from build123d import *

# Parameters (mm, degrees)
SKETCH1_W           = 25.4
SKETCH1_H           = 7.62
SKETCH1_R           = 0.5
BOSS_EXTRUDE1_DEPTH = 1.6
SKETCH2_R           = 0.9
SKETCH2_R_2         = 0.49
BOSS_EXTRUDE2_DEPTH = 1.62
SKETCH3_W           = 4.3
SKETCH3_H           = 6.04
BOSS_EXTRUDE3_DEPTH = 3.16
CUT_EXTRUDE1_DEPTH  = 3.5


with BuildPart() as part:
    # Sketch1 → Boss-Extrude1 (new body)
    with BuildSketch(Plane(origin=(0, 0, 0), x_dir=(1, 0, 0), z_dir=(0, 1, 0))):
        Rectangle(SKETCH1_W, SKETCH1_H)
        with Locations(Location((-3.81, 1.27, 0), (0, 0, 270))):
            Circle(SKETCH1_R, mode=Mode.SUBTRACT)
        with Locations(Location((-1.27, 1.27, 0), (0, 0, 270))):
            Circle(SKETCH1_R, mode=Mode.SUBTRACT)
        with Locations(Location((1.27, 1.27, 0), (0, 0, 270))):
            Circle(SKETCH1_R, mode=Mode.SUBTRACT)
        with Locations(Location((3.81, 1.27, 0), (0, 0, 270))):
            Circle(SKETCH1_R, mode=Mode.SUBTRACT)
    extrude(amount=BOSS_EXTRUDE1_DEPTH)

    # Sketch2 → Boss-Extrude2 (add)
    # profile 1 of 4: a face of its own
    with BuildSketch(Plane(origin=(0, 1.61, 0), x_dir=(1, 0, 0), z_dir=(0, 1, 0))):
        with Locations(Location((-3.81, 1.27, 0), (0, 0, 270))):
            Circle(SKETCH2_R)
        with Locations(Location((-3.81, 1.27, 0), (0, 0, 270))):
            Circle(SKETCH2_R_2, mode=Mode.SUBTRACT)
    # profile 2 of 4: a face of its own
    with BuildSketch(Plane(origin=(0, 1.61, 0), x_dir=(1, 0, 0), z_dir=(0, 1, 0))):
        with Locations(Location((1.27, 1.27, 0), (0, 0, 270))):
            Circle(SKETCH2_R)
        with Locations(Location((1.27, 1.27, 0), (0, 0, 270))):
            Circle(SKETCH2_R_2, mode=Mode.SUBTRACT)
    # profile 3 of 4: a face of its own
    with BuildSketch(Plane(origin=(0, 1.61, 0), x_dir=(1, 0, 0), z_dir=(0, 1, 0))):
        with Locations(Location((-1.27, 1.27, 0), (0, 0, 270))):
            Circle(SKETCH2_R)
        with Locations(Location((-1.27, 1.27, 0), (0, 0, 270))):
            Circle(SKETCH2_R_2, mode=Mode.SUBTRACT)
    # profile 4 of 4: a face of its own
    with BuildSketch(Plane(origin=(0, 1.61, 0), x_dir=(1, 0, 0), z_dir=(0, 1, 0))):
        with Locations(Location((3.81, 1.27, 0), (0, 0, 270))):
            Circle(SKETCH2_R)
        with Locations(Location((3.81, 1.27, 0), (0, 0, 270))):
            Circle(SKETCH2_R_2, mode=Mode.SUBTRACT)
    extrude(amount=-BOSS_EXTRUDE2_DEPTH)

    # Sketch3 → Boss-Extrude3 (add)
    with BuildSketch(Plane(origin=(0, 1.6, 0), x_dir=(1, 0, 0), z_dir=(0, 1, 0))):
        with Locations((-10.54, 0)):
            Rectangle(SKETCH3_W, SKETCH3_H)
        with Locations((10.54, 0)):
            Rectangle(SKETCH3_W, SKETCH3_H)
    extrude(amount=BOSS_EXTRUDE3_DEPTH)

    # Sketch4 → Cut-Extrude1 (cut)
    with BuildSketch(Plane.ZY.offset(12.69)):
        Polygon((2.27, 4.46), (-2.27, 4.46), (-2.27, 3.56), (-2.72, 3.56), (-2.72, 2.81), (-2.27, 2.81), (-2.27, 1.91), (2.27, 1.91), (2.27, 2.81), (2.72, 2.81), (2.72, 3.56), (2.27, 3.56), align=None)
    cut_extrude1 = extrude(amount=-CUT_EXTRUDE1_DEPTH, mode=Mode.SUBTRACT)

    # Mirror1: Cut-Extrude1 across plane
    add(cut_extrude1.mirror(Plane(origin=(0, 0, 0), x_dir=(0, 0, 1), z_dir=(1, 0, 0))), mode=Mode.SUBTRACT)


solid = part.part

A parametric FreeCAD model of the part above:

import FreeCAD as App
import Part
import Sketcher
from FreeCAD import Vector
Q = App.Units.Quantity

doc = App.newDocument("Part")
body = doc.addObject("PartDesign::Body", "Body")

# Sketch on XZ plane
sketch1 = doc.addObject("Sketcher::SketchObject", "Sketch")
body.addObject(sketch1)
sketch1.AttachmentSupport = (doc.XZ_Plane, [""])
sketch1.MapMode = "FlatFace"
sketch1.addGeometry([
    Part.LineSegment(Vector(-12.7, -3.8, 0), Vector(-12.7, 3.8, 0)),  # 0
    Part.LineSegment(Vector(-12.7, 3.8, 0), Vector(12.7, 3.8, 0)),  # 1
    Part.LineSegment(Vector(12.7, 3.8, 0), Vector(12.7, -3.8, 0)),  # 2
    Part.LineSegment(Vector(12.7, -3.8, 0), Vector(-12.7, -3.8, 0)),  # 3
    Part.Circle(Vector(-3.8, -1.3, 0), Vector(0, 0, 1), 0.5),  # 4
    Part.Circle(Vector(-1.3, -1.3, 0), Vector(0, 0, 1), 0.5),  # 5
    Part.Circle(Vector(1.3, -1.3, 0), Vector(0, 0, 1), 0.5),  # 6
    Part.Circle(Vector(3.8, -1.3, 0), Vector(0, 0, 1), 0.5),  # 7
], False)
sketch1.addConstraint([
    Sketcher.Constraint("Coincident", 0, 2, 1, 1),
    Sketcher.Constraint("Coincident", 1, 2, 2, 1),
    Sketcher.Constraint("Coincident", 2, 2, 3, 1),
    Sketcher.Constraint("Coincident", 3, 2, 0, 1),
    Sketcher.Constraint("Vertical", 0),
    Sketcher.Constraint("Horizontal", 1),
    Sketcher.Constraint("Vertical", 2),
    Sketcher.Constraint("Horizontal", 3),
    Sketcher.Constraint("Equal", 4, 5),
    Sketcher.Constraint("Equal", 5, 6),
    Sketcher.Constraint("Equal", 6, 7),
    Sketcher.Constraint("Symmetric", 0, 2, 2, 2, -1, 1),
    Sketcher.Constraint("Symmetric", 5, 3, 6, 3, -2),
    Sketcher.Constraint("Symmetric", 4, 3, 7, 3, -2),
    Sketcher.Constraint("Horizontal", 4, 3, 5, 3),
    Sketcher.Constraint("Diameter", 4, Q("1 mm")),
    Sketcher.Constraint("DistanceX", 1, 1, 1, 2, Q("25.4 mm")),
    Sketcher.Constraint("DistanceY", 0, 1, 0, 2, Q("7.62 mm")),
    Sketcher.Constraint("DistanceX", 4, 3, -1, 1, Q("3.81 mm")),
    Sketcher.Constraint("DistanceY", 4, 3, -1, 1, Q("1.27 mm")),
    Sketcher.Constraint("DistanceX", 5, 3, -1, 1, Q("1.27 mm")),
])
pad1 = doc.addObject("PartDesign::Pad", "Pad")
body.addObject(pad1)
pad1.Profile = sketch1
pad1.Length = 1.6
pad1.Reversed = True

# Sketch on XZ plane
sketch2 = doc.addObject("Sketcher::SketchObject", "Sketch001")
body.addObject(sketch2)
sketch2.AttachmentSupport = (doc.XZ_Plane, [""])
sketch2.MapMode = "FlatFace"
sketch2.AttachmentOffset = App.Placement(Vector(0, 0, -1.61), App.Rotation())
sketch2.addGeometry([
    Part.Circle(Vector(-3.81, -1.27, 0), Vector(0, 0, 1), 0.9),  # 0
    Part.Circle(Vector(-3.81, -1.27, 0), Vector(0, 0, 1), 0.49),  # 1
    Part.Circle(Vector(1.27, -1.27, 0), Vector(0, 0, 1), 0.9),  # 2
    Part.Circle(Vector(1.27, -1.27, 0), Vector(0, 0, 1), 0.49),  # 3
    Part.Circle(Vector(-1.27, -1.27, 0), Vector(0, 0, 1), 0.9),  # 4
    Part.Circle(Vector(-1.27, -1.27, 0), Vector(0, 0, 1), 0.49),  # 5
    Part.Circle(Vector(3.81, -1.27, 0), Vector(0, 0, 1), 0.9),  # 6
    Part.Circle(Vector(3.81, -1.27, 0), Vector(0, 0, 1), 0.49),  # 7
], False)
sketch2.addConstraint([
    Sketcher.Constraint("Coincident", 1, 3, 0, 3),
    Sketcher.Constraint("Coincident", 3, 3, 2, 3),
    Sketcher.Constraint("Coincident", 5, 3, 4, 3),
    Sketcher.Constraint("Coincident", 7, 3, 6, 3),
    Sketcher.Constraint("Equal", 0, 2),
    Sketcher.Constraint("Equal", 1, 3),
    Sketcher.Constraint("Equal", 2, 4),
    Sketcher.Constraint("Equal", 3, 5),
    Sketcher.Constraint("Equal", 4, 6),
    Sketcher.Constraint("Equal", 5, 7),
    Sketcher.Constraint("Symmetric", 2, 3, 4, 3, -2),
    Sketcher.Constraint("Symmetric", 0, 3, 6, 3, -2),
    Sketcher.Constraint("Horizontal", 1, 3, 2, 3),
    Sketcher.Constraint("Diameter", 0, Q("1.8 mm")),
    Sketcher.Constraint("Diameter", 1, Q("0.98 mm")),
    Sketcher.Constraint("DistanceX", 0, 3, -1, 1, Q("3.81 mm")),
    Sketcher.Constraint("DistanceY", 0, 3, -1, 1, Q("1.27 mm")),
    Sketcher.Constraint("DistanceX", -1, 1, 2, 3, Q("1.27 mm")),
])
pad2 = doc.addObject("PartDesign::Pad", "Pad001")
body.addObject(pad2)
pad2.Profile = sketch2
pad2.Length = 1.62

# Sketch on XZ plane
sketch3 = doc.addObject("Sketcher::SketchObject", "Sketch002")
body.addObject(sketch3)
sketch3.AttachmentSupport = (doc.XZ_Plane, [""])
sketch3.MapMode = "FlatFace"
sketch3.AttachmentOffset = App.Placement(Vector(0, 0, -1.6), App.Rotation())
sketch3.addGeometry([
    Part.LineSegment(Vector(-12.7, -3, 0), Vector(-12.7, 3, 0)),  # 0
    Part.LineSegment(Vector(-12.7, 3, 0), Vector(-8.4, 3, 0)),  # 1
    Part.LineSegment(Vector(-8.4, 3, 0), Vector(-8.4, -3, 0)),  # 2
    Part.LineSegment(Vector(-8.4, -3, 0), Vector(-12.7, -3, 0)),  # 3
    Part.LineSegment(Vector(8.4, -3, 0), Vector(8.4, 3, 0)),  # 4
    Part.LineSegment(Vector(8.4, 3, 0), Vector(12.7, 3, 0)),  # 5
    Part.LineSegment(Vector(12.7, 3, 0), Vector(12.7, -3, 0)),  # 6
    Part.LineSegment(Vector(12.7, -3, 0), Vector(8.4, -3, 0)),  # 7
], False)
sketch3.addConstraint([
    Sketcher.Constraint("Coincident", 0, 2, 1, 1),
    Sketcher.Constraint("Coincident", 1, 2, 2, 1),
    Sketcher.Constraint("Coincident", 2, 2, 3, 1),
    Sketcher.Constraint("Coincident", 3, 2, 0, 1),
    Sketcher.Constraint("Coincident", 4, 2, 5, 1),
    Sketcher.Constraint("Coincident", 5, 2, 6, 1),
    Sketcher.Constraint("Coincident", 6, 2, 7, 1),
    Sketcher.Constraint("Coincident", 7, 2, 4, 1),
    Sketcher.Constraint("Vertical", 0),
    Sketcher.Constraint("Horizontal", 1),
    Sketcher.Constraint("Vertical", 2),
    Sketcher.Constraint("Horizontal", 3),
    Sketcher.Constraint("Vertical", 4),
    Sketcher.Constraint("Horizontal", 5),
    Sketcher.Constraint("Vertical", 6),
    Sketcher.Constraint("Horizontal", 7),
    Sketcher.Constraint("Symmetric", 2, 2, 4, 2, -1, 1),
    Sketcher.Constraint("Symmetric", 0, 2, 6, 2, -1, 1),
    Sketcher.Constraint("Horizontal", 1, 2, 4, 2),
    Sketcher.Constraint("DistanceX", 1, 1, 1, 2, Q("4.3 mm")),
    Sketcher.Constraint("DistanceY", 0, 1, 0, 2, Q("6.04 mm")),
    Sketcher.Constraint("DistanceX", 0, 2, -1, 1, Q("12.69 mm")),
])
pad3 = doc.addObject("PartDesign::Pad", "Pad002")
body.addObject(pad3)
pad3.Profile = sketch3
pad3.Length = 3.16
pad3.Reversed = True

# Sketch on YZ plane
sketch4 = doc.addObject("Sketcher::SketchObject", "Sketch003")
body.addObject(sketch4)
sketch4.AttachmentSupport = (doc.YZ_Plane, [""])
sketch4.MapMode = "FlatFace"
sketch4.AttachmentOffset = App.Placement(Vector(0, 0, -12.69), App.Rotation())
sketch4.addGeometry([
    Part.LineSegment(Vector(4.46, 2.27, 0), Vector(4.46, -2.27, 0)),  # 0
    Part.LineSegment(Vector(4.46, -2.27, 0), Vector(3.56, -2.27, 0)),  # 1
    Part.LineSegment(Vector(3.56, -2.27, 0), Vector(3.56, -2.72, 0)),  # 2
    Part.LineSegment(Vector(3.56, -2.72, 0), Vector(2.81, -2.72, 0)),  # 3
    Part.LineSegment(Vector(2.81, -2.72, 0), Vector(2.81, -2.27, 0)),  # 4
    Part.LineSegment(Vector(2.81, -2.27, 0), Vector(1.91, -2.27, 0)),  # 5
    Part.LineSegment(Vector(1.91, -2.27, 0), Vector(1.91, 2.27, 0)),  # 6
    Part.LineSegment(Vector(1.91, 2.27, 0), Vector(2.81, 2.27, 0)),  # 7
    Part.LineSegment(Vector(2.81, 2.27, 0), Vector(2.81, 2.72, 0)),  # 8
    Part.LineSegment(Vector(2.81, 2.72, 0), Vector(3.56, 2.72, 0)),  # 9
    Part.LineSegment(Vector(3.56, 2.72, 0), Vector(3.56, 2.27, 0)),  # 10
    Part.LineSegment(Vector(3.56, 2.27, 0), Vector(4.46, 2.27, 0)),  # 11
], False)
sketch4.addConstraint([
    Sketcher.Constraint("Coincident", 0, 2, 1, 1),
    Sketcher.Constraint("Coincident", 1, 2, 2, 1),
    Sketcher.Constraint("Coincident", 2, 2, 3, 1),
    Sketcher.Constraint("Coincident", 3, 2, 4, 1),
    Sketcher.Constraint("Coincident", 4, 2, 5, 1),
    Sketcher.Constraint("Coincident", 5, 2, 6, 1),
    Sketcher.Constraint("Coincident", 6, 2, 7, 1),
    Sketcher.Constraint("Coincident", 7, 2, 8, 1),
    Sketcher.Constraint("Coincident", 8, 2, 9, 1),
    Sketcher.Constraint("Coincident", 9, 2, 10, 1),
    Sketcher.Constraint("Coincident", 10, 2, 11, 1),
    Sketcher.Constraint("Coincident", 11, 2, 0, 1),
    Sketcher.Constraint("Vertical", 0),
    Sketcher.Constraint("Horizontal", 1),
    Sketcher.Constraint("Vertical", 2),
    Sketcher.Constraint("Horizontal", 3),
    Sketcher.Constraint("Vertical", 4),
    Sketcher.Constraint("Horizontal", 5),
    Sketcher.Constraint("Vertical", 6),
    Sketcher.Constraint("Horizontal", 7),
    Sketcher.Constraint("Vertical", 8),
    Sketcher.Constraint("Horizontal", 9),
    Sketcher.Constraint("Vertical", 10),
    Sketcher.Constraint("Horizontal", 11),
    Sketcher.Constraint("Symmetric", 4, 2, 7, 2, -1),
    Sketcher.Constraint("Symmetric", 2, 2, 9, 2, -1),
    Sketcher.Constraint("Horizontal", 1, 2, 4, 2),
    Sketcher.Constraint("Horizontal", 7, 2, 10, 2),
    Sketcher.Constraint("Equal", 1, 5),
    Sketcher.Constraint("DistanceX", 1, 2, 1, 1, Q("0.9 mm")),
    Sketcher.Constraint("DistanceX", 3, 2, 3, 1, Q("0.75 mm")),
    Sketcher.Constraint("DistanceY", 0, 2, 0, 1, Q("4.54 mm")),
    Sketcher.Constraint("DistanceY", 2, 2, 2, 1, Q("0.45 mm")),
    Sketcher.Constraint("DistanceX", -1, 1, 0, 2, Q("4.46 mm")),
])
pocket1 = doc.addObject("PartDesign::Pocket", "Pocket")
body.addObject(pocket1)
pocket1.Profile = sketch4
pocket1.Length = 3.5
pocket1.Reversed = True
doc.recompute()

mirrored = doc.addObject("PartDesign::Mirrored", "Mirrored")
body.addObject(mirrored)
mirrored.Originals = [pocket1]
mirrored.MirrorPlane = (doc.YZ_Plane, [""])
body.Tip = mirrored

doc.recompute()
